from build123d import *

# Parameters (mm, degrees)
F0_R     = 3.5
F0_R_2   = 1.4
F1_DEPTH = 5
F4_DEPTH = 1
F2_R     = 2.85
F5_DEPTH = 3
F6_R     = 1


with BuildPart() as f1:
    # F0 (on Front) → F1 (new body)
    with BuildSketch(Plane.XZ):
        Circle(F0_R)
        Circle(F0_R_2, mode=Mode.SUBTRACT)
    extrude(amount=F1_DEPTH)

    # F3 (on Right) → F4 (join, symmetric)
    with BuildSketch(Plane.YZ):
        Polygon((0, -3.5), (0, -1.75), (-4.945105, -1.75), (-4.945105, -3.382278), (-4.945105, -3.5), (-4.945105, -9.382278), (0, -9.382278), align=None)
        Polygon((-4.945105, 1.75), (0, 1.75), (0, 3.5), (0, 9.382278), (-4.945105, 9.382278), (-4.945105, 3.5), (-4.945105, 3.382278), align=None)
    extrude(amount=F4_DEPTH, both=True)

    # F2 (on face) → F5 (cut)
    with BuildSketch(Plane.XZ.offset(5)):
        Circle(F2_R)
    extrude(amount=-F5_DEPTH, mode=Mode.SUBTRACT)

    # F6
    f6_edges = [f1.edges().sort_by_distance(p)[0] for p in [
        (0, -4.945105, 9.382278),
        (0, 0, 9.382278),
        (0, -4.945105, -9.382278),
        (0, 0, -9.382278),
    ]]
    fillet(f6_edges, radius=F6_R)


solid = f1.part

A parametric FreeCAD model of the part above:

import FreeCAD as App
import Part
import Sketcher
from FreeCAD import Vector


def edges_at(feature, points):
    """Names of the edges that pass closest to the given points."""
    edges = feature.Shape.Edges
    near = lambda p: min(range(len(edges)), key=lambda i: edges[i].distToShape(Part.Vertex(*p))[0])
    return sorted({f"Edge{near(p) + 1}" for p in points})


def add_polygon(sketch, points):
    """Adds a closed chain of lines whose ends are joined by coincident constraints."""
    first, n = sketch.GeometryCount, len(points)
    for a, b in zip(points, points[1:] + points[:1]):
        sketch.addGeometry(Part.LineSegment(App.Vector(*a, 0), App.Vector(*b, 0)), False)
    for i in range(n):
        sketch.addConstraint(Sketcher.Constraint("Coincident", first + i, 2, first + (i + 1) % n, 1))

doc = App.newDocument("Part")
params = doc.addObject("Spreadsheet::Sheet", "Params")
for row, (alias, value) in enumerate([
    ("sketch1_diameter", "7 mm"),
    ("sketch1_diameter2", "2.8 mm"),
    ("pad1_length", "5 mm"),
    ("pad2_length", "2 mm"),
    ("sketch3_diameter", "5.7 mm"),
    ("pocket1_length", "3 mm"),
    ("fillet_radius", "1 mm"),
], start=1):
    params.set(f"A{row}", alias)
    params.set(f"B{row}", "=" + value)
    params.setAlias(f"B{row}", alias)

body = doc.addObject("PartDesign::Body", "Body")

# Sketch on XZ plane
sketch1 = doc.addObject("Sketcher::SketchObject", "Sketch")
body.addObject(sketch1)
sketch1.AttachmentSupport = (doc.XZ_Plane, [""])
sketch1.MapMode = "FlatFace"
sketch1.addGeometry([
    Part.Circle(Vector(0, 0, 0), Vector(0, 0, 1), 3.5),
    Part.Circle(Vector(0, 0, 0), Vector(0, 0, 1), 1.4),
], False)
sketch1.addConstraint([
    Sketcher.Constraint("Coincident", 0, 3, -1, 1),
    Sketcher.Constraint("Coincident", 1, 3, -1, 1),
    Sketcher.Constraint("Diameter", 0, 7.0),
    Sketcher.Constraint("Diameter", 1, 2.8),
])
sketch1.setExpression("Constraints[2]", "Params.sketch1_diameter")
sketch1.setExpression("Constraints[3]", "Params.sketch1_diameter2")
pad1 = doc.addObject("PartDesign::Pad", "Pad")
body.addObject(pad1)
pad1.Profile = sketch1
pad1.setExpression("Length", "Params.pad1_length")

# Sketch on YZ plane
sketch2 = doc.addObject("Sketcher::SketchObject", "Sketch001")
body.addObject(sketch2)
sketch2.AttachmentSupport = (doc.YZ_Plane, [""])
sketch2.MapMode = "FlatFace"
add_polygon(sketch2, [(0, -1.8), (-4.9, -1.8), (-4.9, -9.4), (0, -9.4)])  # lines 0-3
add_polygon(sketch2, [(-4.9, 1.8), (0, 1.8), (0, 9.4), (-4.9, 9.4)])  # lines 4-7
sketch2.addConstraint([
    Sketcher.Constraint("Horizontal", 0),
    Sketcher.Constraint("Vertical", 1),
    Sketcher.Constraint("Horizontal", 2),
    Sketcher.Constraint("Vertical", 3),
    Sketcher.Constraint("Horizontal", 4),
    Sketcher.Constraint("Vertical", 5),
    Sketcher.Constraint("Horizontal", 6),
    Sketcher.Constraint("Vertical", 7),
    Sketcher.Constraint("Symmetric", 3, 2, 4, 2, -1, 1),
    Sketcher.Constraint("Symmetric", 2, 2, 5, 2, -1),
    Sketcher.Constraint("Vertical", 1, 2, 6, 2),
    Sketcher.Constraint("DistanceY", 3, 2, 4, 2, 3.5),
    Sketcher.Constraint("DistanceX", 0, 2, 0, 1, 4.945105),
    Sketcher.Constraint("DistanceY", 1, 2, 1, 1, 7.632278),
])
pad2 = doc.addObject("PartDesign::Pad", "Pad001")
body.addObject(pad2)
pad2.Profile = sketch2
pad2.setExpression("Length", "Params.pad2_length")
pad2.Midplane = True

# Sketch on XZ plane
sketch3 = doc.addObject("Sketcher::SketchObject", "Sketch002")
body.addObject(sketch3)
sketch3.AttachmentSupport = (doc.XZ_Plane, [""])
sketch3.MapMode = "FlatFace"
sketch3.AttachmentOffset = App.Placement(Vector(0, 0, 5), App.Rotation())
sketch3.addGeometry(Part.Circle(Vector(0, 0, 0), Vector(0, 0, 1), 2.9), False)
sketch3.addConstraint([
    Sketcher.Constraint("Coincident", 0, 3, -1, 1),
    Sketcher.Constraint("Diameter", 0, 5.7),
])
sketch3.setExpression("Constraints[1]", "Params.sketch3_diameter")
pocket1 = doc.addObject("PartDesign::Pocket", "Pocket")
body.addObject(pocket1)
pocket1.Profile = sketch3
pocket1.setExpression("Length", "Params.pocket1_length")
doc.recompute()

fillet = doc.addObject("PartDesign::Fillet", "Fillet")
body.addObject(fillet)
fillet.Base = (pocket1, edges_at(pocket1, [
    (0, -4.945, 9.382),
    (0, 0, 9.382),
    (0, -4.945, -9.382),
    (0, 0, -9.382),
]))
fillet.setExpression("Radius", "Params.fillet_radius")

doc.recompute()
